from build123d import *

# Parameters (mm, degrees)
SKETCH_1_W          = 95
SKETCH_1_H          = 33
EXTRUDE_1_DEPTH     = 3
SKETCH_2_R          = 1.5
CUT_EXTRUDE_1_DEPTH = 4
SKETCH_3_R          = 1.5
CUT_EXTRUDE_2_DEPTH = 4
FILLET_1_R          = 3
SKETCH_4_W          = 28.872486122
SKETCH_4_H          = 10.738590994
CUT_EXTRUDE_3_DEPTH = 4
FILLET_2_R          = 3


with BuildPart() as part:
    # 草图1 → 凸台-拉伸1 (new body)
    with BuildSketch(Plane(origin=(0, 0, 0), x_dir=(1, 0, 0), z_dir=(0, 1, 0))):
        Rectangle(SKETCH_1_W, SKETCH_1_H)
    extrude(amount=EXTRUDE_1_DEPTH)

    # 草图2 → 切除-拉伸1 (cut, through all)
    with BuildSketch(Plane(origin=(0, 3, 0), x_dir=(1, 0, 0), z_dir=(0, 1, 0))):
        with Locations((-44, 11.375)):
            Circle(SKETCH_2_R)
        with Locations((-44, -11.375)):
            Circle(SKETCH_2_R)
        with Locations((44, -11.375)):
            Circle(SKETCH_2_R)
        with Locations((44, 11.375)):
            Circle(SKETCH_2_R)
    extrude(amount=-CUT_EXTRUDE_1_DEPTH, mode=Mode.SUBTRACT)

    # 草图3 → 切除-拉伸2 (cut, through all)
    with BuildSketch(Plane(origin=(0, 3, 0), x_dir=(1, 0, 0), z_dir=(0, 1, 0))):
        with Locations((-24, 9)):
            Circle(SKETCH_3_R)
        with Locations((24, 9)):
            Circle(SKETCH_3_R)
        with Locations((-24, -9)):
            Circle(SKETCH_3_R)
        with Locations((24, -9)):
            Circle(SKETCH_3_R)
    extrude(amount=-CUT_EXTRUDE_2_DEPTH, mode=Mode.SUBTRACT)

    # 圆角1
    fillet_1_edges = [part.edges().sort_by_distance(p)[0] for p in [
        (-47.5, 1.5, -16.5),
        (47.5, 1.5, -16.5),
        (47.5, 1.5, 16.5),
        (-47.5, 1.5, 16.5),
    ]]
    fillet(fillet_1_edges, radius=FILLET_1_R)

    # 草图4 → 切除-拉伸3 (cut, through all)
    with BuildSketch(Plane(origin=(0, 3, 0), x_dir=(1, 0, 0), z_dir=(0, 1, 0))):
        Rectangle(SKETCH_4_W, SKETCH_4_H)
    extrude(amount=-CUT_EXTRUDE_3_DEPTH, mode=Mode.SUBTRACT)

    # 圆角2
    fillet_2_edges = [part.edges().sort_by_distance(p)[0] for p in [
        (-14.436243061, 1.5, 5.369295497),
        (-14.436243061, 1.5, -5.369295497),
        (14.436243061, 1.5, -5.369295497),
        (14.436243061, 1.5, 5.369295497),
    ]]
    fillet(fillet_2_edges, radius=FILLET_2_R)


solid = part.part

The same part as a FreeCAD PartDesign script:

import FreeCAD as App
import Part
import Sketcher


def edges_at(feature, points):
    """Names of the edges that pass closest to the given points."""
    edges = feature.Shape.Edges
    near = lambda p: min(range(len(edges)), key=lambda i: edges[i].distToShape(Part.Vertex(*p))[0])
    return sorted({f"Edge{near(p) + 1}" for p in points})


def add_polygon(sketch, points):
    """Adds a closed chain of lines whose ends are joined by coincident constraints."""
    first, n = sketch.GeometryCount, len(points)
    for a, b in zip(points, points[1:] + points[:1]):
        sketch.addGeometry(Part.LineSegment(App.Vector(*a, 0), App.Vector(*b, 0)), False)
    for i in range(n):
        sketch.addConstraint(Sketcher.Constraint("Coincident", first + i, 2, first + (i + 1) % n, 1))

doc = App.newDocument("Part")
body = doc.addObject("PartDesign::Body", "Body")

# Sketch on XZ plane
sketch1 = body.newObject("Sketcher::SketchObject", "Sketch")
sketch1.AttachmentSupport = (doc.getObject("XZ_Plane"), [""])
sketch1.MapMode = "FlatFace"
add_polygon(sketch1, [(-48, -16), (-48, 16), (48, 16), (48, -16)])  # lines 0-3
sketch1.addConstraint(Sketcher.Constraint("Vertical", 0))
sketch1.addConstraint(Sketcher.Constraint("Horizontal", 1))
sketch1.addConstraint(Sketcher.Constraint("Vertical", 2))
sketch1.addConstraint(Sketcher.Constraint("Horizontal", 3))
sketch1.addConstraint(Sketcher.Constraint("Symmetric", 0, 2, 2, 2, -1, 1))
sketch1.addConstraint(Sketcher.Constraint("DistanceX", 1, 1, 1, 2, 95.0))
sketch1.addConstraint(Sketcher.Constraint("DistanceY", 0, 1, 0, 2, 33.0))
pad1 = body.newObject("PartDesign::Pad", "Pad")
pad1.Profile = sketch1
pad1.Length = 3
pad1.Reversed = True

# Sketch on XZ plane
sketch2 = body.newObject("Sketcher::SketchObject", "Sketch001")
sketch2.AttachmentSupport = (doc.getObject("XZ_Plane"), [""])
sketch2.MapMode = "FlatFace"
sketch2.AttachmentOffset = App.Placement(App.Vector(0, 0, -3), App.Rotation())
sketch2.addGeometry(Part.Circle(App.Vector(-44, -11.4, 0), App.Vector(0, 0, 1), 1.5), False)
sketch2.addGeometry(Part.Circle(App.Vector(-44, 11.4, 0), App.Vector(0, 0, 1), 1.5), False)
sketch2.addGeometry(Part.Circle(App.Vector(44, 11.4, 0), App.Vector(0, 0, 1), 1.5), False)
sketch2.addGeometry(Part.Circle(App.Vector(44, -11.4, 0), App.Vector(0, 0, 1), 1.5), False)
sketch2.addConstraint(Sketcher.Constraint("Equal", 0, 1))
sketch2.addConstraint(Sketcher.Constraint("Equal", 1, 2))
sketch2.addConstraint(Sketcher.Constraint("Equal", 2, 3))
sketch2.addConstraint(Sketcher.Constraint("Symmetric", 0, 3, 2, 3, -1, 1))
sketch2.addConstraint(Sketcher.Constraint("Symmetric", 1, 3, 3, 3, -1, 1))
sketch2.addConstraint(Sketcher.Constraint("Symmetric", 1, 3, 2, 3, -2))
sketch2.addConstraint(Sketcher.Constraint("Diameter", 0, 3.0))
sketch2.addConstraint(Sketcher.Constraint("DistanceX", 0, 3, -1, 1, 44.0))
sketch2.addConstraint(Sketcher.Constraint("DistanceY", 0, 3, 1, 3, 22.75))
pocket1 = body.newObject("PartDesign::Pocket", "Pocket")
pocket1.Profile = sketch2
pocket1.Type = "ThroughAll"
pocket1.Reversed = True

# Sketch on XZ plane
sketch3 = body.newObject("Sketcher::SketchObject", "Sketch002")
sketch3.AttachmentSupport = (doc.getObject("XZ_Plane"), [""])
sketch3.MapMode = "FlatFace"
sketch3.AttachmentOffset = App.Placement(App.Vector(0, 0, -3), App.Rotation())
sketch3.addGeometry(Part.Circle(App.Vector(-24, -9, 0), App.Vector(0, 0, 1), 1.5), False)
sketch3.addGeometry(Part.Circle(App.Vector(24, -9, 0), App.Vector(0, 0, 1), 1.5), False)
sketch3.addGeometry(Part.Circle(App.Vector(-24, 9, 0), App.Vector(0, 0, 1), 1.5), False)
sketch3.addGeometry(Part.Circle(App.Vector(24, 9, 0), App.Vector(0, 0, 1), 1.5), False)
sketch3.addConstraint(Sketcher.Constraint("Equal", 0, 1))
sketch3.addConstraint(Sketcher.Constraint("Equal", 1, 2))
sketch3.addConstraint(Sketcher.Constraint("Equal", 2, 3))
sketch3.addConstraint(Sketcher.Constraint("Symmetric", 1, 3, 2, 3, -1, 1))
sketch3.addConstraint(Sketcher.Constraint("Symmetric", 0, 3, 3, 3, -1, 1))
sketch3.addConstraint(Sketcher.Constraint("Symmetric", 0, 3, 1, 3, -2))
sketch3.addConstraint(Sketcher.Constraint("Diameter", 0, 3.0))
sketch3.addConstraint(Sketcher.Constraint("DistanceX", 0, 3, -1, 1, 24.0))
sketch3.addConstraint(Sketcher.Constraint("DistanceY", 0, 3, -1, 1, 9.0))
pocket2 = body.newObject("PartDesign::Pocket", "Pocket001")
pocket2.Profile = sketch3
pocket2.Type = "ThroughAll"
pocket2.Reversed = True
doc.recompute()

fillet = body.newObject("PartDesign::Fillet", "Fillet")
fillet.Base = (pocket2, edges_at(pocket2, [
    (-47.5, 1.5, -16.5),
    (47.5, 1.5, -16.5),
    (47.5, 1.5, 16.5),
    (-47.5, 1.5, 16.5),
]))
fillet.Radius = 3

# Sketch on XZ plane
sketch4 = body.newObject("Sketcher::SketchObject", "Sketch003")
sketch4.AttachmentSupport = (doc.getObject("XZ_Plane"), [""])
sketch4.MapMode = "FlatFace"
sketch4.AttachmentOffset = App.Placement(App.Vector(0, 0, -3), App.Rotation())
add_polygon(sketch4, [(-14, -5), (-14, 5), (14, 5), (14, -5)])  # lines 0-3
sketch4.addConstraint(Sketcher.Constraint("Vertical", 0))
sketch4.addConstraint(Sketcher.Constraint("Horizontal", 1))
sketch4.addConstraint(Sketcher.Constraint("Vertical", 2))
sketch4.addConstraint(Sketcher.Constraint("Horizontal", 3))
sketch4.addConstraint(Sketcher.Constraint("Symmetric", 0, 2, 2, 2, -1, 1))
sketch4.addConstraint(Sketcher.Constraint("DistanceY", 0, 1, 0, 2, 10.738591))
sketch4.addConstraint(Sketcher.Constraint("DistanceX", 1, 1, 1, 2, 28.872486))
pocket3 = body.newObject("PartDesign::Pocket", "Pocket002")
pocket3.Profile = sketch4
pocket3.Type = "ThroughAll"
pocket3.Reversed = True
doc.recompute()

fillet2 = body.newObject("PartDesign::Fillet", "Fillet001")
fillet2.Base = (pocket3, edges_at(pocket3, [
    (-14.436, 1.5, 5.369),
    (-14.436, 1.5, -5.369),
    (14.436, 1.5, -5.369),
    (14.436, 1.5, 5.369),
]))
fillet2.Radius = 3

doc.recompute()
